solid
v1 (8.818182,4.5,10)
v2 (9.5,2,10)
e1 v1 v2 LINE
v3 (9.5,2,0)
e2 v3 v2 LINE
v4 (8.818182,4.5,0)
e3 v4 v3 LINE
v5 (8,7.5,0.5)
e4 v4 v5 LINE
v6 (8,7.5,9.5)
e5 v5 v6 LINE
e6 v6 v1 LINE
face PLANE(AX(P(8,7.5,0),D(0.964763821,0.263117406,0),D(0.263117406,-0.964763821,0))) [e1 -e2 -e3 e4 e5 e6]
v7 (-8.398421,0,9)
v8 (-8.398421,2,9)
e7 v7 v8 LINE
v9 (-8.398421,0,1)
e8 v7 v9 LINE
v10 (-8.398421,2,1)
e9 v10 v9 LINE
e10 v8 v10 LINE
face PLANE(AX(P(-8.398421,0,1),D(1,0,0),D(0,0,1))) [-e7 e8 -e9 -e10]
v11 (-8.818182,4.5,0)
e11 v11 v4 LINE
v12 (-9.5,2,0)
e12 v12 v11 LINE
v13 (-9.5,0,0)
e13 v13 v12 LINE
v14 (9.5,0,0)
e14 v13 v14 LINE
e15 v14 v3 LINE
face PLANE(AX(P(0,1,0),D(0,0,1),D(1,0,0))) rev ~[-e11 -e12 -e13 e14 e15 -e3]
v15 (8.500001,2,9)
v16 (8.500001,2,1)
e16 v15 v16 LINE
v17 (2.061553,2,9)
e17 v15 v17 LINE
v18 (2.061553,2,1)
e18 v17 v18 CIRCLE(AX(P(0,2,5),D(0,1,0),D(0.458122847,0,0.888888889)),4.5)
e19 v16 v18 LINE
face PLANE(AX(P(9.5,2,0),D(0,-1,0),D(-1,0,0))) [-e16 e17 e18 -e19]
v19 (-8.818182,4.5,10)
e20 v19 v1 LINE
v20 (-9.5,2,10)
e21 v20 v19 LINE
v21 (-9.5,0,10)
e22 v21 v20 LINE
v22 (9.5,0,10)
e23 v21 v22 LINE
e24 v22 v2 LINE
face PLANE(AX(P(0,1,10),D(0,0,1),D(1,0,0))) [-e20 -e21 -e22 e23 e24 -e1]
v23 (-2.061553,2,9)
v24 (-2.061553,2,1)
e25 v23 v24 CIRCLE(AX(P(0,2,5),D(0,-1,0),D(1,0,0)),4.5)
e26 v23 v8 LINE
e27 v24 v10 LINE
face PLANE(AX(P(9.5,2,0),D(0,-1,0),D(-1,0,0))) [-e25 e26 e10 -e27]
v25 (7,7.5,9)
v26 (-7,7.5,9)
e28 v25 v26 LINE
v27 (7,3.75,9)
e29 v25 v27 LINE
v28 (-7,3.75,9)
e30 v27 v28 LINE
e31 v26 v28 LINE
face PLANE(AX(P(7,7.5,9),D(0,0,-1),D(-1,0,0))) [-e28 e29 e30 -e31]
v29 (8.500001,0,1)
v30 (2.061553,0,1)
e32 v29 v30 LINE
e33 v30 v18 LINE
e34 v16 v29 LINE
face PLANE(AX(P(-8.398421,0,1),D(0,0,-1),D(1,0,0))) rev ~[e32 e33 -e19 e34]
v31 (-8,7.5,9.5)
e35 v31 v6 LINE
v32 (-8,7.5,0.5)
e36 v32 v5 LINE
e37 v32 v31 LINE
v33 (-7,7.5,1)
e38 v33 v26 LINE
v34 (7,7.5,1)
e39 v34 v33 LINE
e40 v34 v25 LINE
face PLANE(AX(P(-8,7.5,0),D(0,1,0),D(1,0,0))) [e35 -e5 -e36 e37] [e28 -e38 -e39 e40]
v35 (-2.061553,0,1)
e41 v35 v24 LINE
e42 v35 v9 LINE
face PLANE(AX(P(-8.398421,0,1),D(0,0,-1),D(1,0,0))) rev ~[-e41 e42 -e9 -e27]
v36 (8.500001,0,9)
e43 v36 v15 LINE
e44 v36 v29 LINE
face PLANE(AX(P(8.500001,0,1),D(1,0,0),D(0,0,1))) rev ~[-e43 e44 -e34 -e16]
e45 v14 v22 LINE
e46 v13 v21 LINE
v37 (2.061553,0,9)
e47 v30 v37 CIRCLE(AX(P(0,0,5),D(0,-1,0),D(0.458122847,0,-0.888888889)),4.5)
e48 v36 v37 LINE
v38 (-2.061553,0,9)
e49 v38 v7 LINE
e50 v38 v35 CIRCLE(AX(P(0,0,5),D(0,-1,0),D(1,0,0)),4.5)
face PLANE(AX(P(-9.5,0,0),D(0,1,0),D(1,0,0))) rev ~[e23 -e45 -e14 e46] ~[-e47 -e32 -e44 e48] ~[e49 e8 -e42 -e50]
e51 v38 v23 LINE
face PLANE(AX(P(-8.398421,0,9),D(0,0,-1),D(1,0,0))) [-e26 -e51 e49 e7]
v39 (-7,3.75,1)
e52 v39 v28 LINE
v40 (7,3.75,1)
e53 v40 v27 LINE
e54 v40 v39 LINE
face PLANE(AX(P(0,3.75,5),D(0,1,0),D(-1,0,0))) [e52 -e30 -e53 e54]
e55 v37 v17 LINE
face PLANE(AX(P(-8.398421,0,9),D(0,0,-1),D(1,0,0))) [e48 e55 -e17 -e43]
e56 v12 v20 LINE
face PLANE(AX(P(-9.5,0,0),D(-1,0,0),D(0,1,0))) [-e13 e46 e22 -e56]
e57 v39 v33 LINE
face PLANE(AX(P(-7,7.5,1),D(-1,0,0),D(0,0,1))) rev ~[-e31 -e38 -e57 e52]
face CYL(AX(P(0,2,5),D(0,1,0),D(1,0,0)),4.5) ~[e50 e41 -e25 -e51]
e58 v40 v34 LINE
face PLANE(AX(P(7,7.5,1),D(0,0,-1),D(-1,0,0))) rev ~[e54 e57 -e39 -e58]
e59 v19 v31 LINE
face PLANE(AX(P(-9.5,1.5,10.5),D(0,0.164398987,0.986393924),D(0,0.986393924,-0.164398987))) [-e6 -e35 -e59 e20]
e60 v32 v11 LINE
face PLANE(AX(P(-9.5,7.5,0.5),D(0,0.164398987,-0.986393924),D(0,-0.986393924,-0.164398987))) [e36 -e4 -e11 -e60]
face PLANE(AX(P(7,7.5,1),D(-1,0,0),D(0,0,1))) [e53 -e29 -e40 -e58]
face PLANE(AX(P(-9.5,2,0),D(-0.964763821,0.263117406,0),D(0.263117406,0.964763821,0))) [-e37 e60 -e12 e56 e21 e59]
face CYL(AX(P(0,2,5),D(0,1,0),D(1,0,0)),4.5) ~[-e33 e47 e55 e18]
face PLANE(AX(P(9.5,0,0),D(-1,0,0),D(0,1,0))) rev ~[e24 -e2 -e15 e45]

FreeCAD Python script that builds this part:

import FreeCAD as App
import Part
import Sketcher


def add_polygon(sketch, points):
    """Adds a closed chain of lines whose ends are joined by coincident constraints."""
    first, n = sketch.GeometryCount, len(points)
    for a, b in zip(points, points[1:] + points[:1]):
        sketch.addGeometry(Part.LineSegment(App.Vector(*a, 0), App.Vector(*b, 0)), False)
    for i in range(n):
        sketch.addConstraint(Sketcher.Constraint("Coincident", first + i, 2, first + (i + 1) % n, 1))

doc = App.newDocument("Part")
body = doc.addObject("PartDesign::Body", "Body")

sketch1 = body.newObject("Sketcher::SketchObject", "Sketch")
sketch1.AttachmentSupport = (doc.getObject("XZ_Plane"), [""])
sketch1.MapMode = "FlatFace"
add_polygon(sketch1, [(-8.398421, 9), (-8.398421, 1), (8.500001, 1), (8.500001, 9)])
sketch1.addConstraint([
    Sketcher.Constraint("Vertical", 0),
    Sketcher.Constraint("Horizontal", 1),
    Sketcher.Constraint("Vertical", 2),
    Sketcher.Constraint("Horizontal", 3),
    Sketcher.Constraint("DistanceY", 0, 2, 0, 1, 8.0),
    Sketcher.Constraint("DistanceY", -1, 1, 0, 2, 1.0),
    Sketcher.Constraint("DistanceX", -1, 1, 1, 2, 8.500001),
    Sketcher.Constraint("DistanceX", 1, 1, 1, 2, 16.898421),
])
pad1 = body.newObject("PartDesign::Pad", "Pad")
pad1.Profile = sketch1
pad1.Length = 5
pad1.Midplane = True
body2 = doc.addObject("PartDesign::Body", "Body001")

sketch2 = body2.newObject("Sketcher::SketchObject", "Sketch001")
sketch2.AttachmentSupport = (doc.getObject("XY_Plane001"), [""])
sketch2.MapMode = "FlatFace"
add_polygon(sketch2, [(-9.5, 2), (-9.5, 0), (9.5, 0), (9.5, 2)])
sketch2.addConstraint([
    Sketcher.Constraint("Vertical", 0),
    Sketcher.Constraint("Horizontal", 1),
    Sketcher.Constraint("Vertical", 2),
    Sketcher.Constraint("Horizontal", 3),
    Sketcher.Constraint("Symmetric", 0, 2, 1, 2, -1, 1),
    Sketcher.Constraint("DistanceX", 1, 1, 1, 2, 19.0),
    Sketcher.Constraint("DistanceY", 0, 2, 0, 1, 2.0),
])
pad2 = body2.newObject("PartDesign::Pad", "Pad001")
pad2.Profile = sketch2
pad2.Length = 10
doc.recompute()

boolean = body2.newObject("PartDesign::Boolean", "Boolean")
boolean.Type = "Cut"
boolean.addObjects([body])
body3 = doc.addObject("PartDesign::Body", "Body002")

sketch3 = body3.newObject("Sketcher::SketchObject", "Sketch002")
sketch3.AttachmentSupport = (doc.getObject("XZ_Plane002"), [""])
sketch3.MapMode = "FlatFace"
sketch3.AttachmentOffset = App.Placement(App.Vector(0, 0, -2), App.Rotation())
sketch3.addGeometry(Part.Circle(App.Vector(0, 5, 0), App.Vector(0, 0, 1), 4.5), False)
sketch3.addConstraint([
    Sketcher.Constraint("PointOnObject", 0, 3, -2),
    Sketcher.Constraint("Diameter", 0, 9.0),
    Sketcher.Constraint("DistanceY", -1, 1, 0, 3, 5.0),
])
pad3 = body3.newObject("PartDesign::Pad", "Pad002")
pad3.Profile = sketch3
pad3.Length = 2
body4 = doc.addObject("PartDesign::Body", "Body003")

sketch4 = body4.newObject("Sketcher::SketchObject", "Sketch003")
sketch4.AttachmentSupport = (doc.getObject("YZ_Plane003"), [""])
sketch4.MapMode = "FlatFace"
sketch4.AttachmentOffset = App.Placement(App.Vector(0, 0, -9.5), App.Rotation())
add_polygon(sketch4, [(1.5, 10.5), (7.5, 9.5), (7.5, 0.5), (1.5, -0.5)])
sketch4.addConstraint([
    Sketcher.Constraint("Vertical", 1),
    Sketcher.Constraint("Vertical", 3),
    Sketcher.Constraint("Equal", 0, 2),
    Sketcher.Constraint("DistanceY", 1, 2, 1, 1, 9.0),
    Sketcher.Constraint("DistanceY", 3, 1, 3, 2, 11.0),
    Sketcher.Constraint("DistanceX", 2, 2, 1, 2, 6.0),
    Sketcher.Constraint("DistanceX", -1, 1, 0, 2, 7.5),
    Sketcher.Constraint("DistanceY", -1, 1, 0, 2, 9.5),
])
pad4 = body4.newObject("PartDesign::Pad", "Pad003")
pad4.Profile = sketch4
pad4.Length = 19
body5 = doc.addObject("PartDesign::Body", "Body004")

sketch5 = body5.newObject("Sketcher::SketchObject", "Sketch004")
sketch5.AttachmentSupport = (doc.getObject("XZ_Plane004"), [""])
sketch5.MapMode = "FlatFace"
sketch5.AttachmentOffset = App.Placement(App.Vector(0, 0, -7.5), App.Rotation())
add_polygon(sketch5, [(7, 9), (7, 1), (-7, 1), (-7, 9)])
sketch5.addConstraint([
    Sketcher.Constraint("Vertical", 0),
    Sketcher.Constraint("Horizontal", 1),
    Sketcher.Constraint("Vertical", 2),
    Sketcher.Constraint("Horizontal", 3),
    Sketcher.Constraint("DistanceX", 1, 2, 1, 1, 14.0),
    Sketcher.Constraint("DistanceY", 0, 2, 0, 1, 8.0),
    Sketcher.Constraint("DistanceX", -1, 1, 0, 2, 7.0),
    Sketcher.Constraint("DistanceY", -1, 1, 0, 2, 1.0),
])
pad5 = body5.newObject("PartDesign::Pad", "Pad004")
pad5.Profile = sketch5
pad5.Length = 7.5
pad5.Midplane = True
body6 = doc.addObject("PartDesign::Body", "Body005")

sketch6 = body6.newObject("Sketcher::SketchObject", "Sketch005")
sketch6.AttachmentSupport = (doc.getObject("XY_Plane005"), [""])
sketch6.MapMode = "FlatFace"
add_polygon(sketch6, [(-8, 7.5), (-9.5, 2), (9.5, 2), (8, 7.5)])
sketch6.addConstraint([
    Sketcher.Constraint("Horizontal", 1),
    Sketcher.Constraint("Horizontal", 3),
    Sketcher.Constraint("Equal", 0, 2),
    Sketcher.Constraint("DistanceX", 1, 1, 1, 2, 19.0),
    Sketcher.Constraint("DistanceX", 3, 2, 3, 1, 16.0),
    Sketcher.Constraint("DistanceY", -1, 1, 0, 2, 2.0),
    Sketcher.Constraint("DistanceX", -1, 1, 2, 2, 8.0),
    Sketcher.Constraint("DistanceY", -1, 1, 2, 2, 7.5),
])
pad6 = body6.newObject("PartDesign::Pad", "Pad005")
pad6.Profile = sketch6
pad6.Length = 10
doc.recompute()

boolean2 = body6.newObject("PartDesign::Boolean", "Boolean001")
boolean2.Type = "Cut"
boolean2.addObjects([body5])
doc.recompute()

boolean3 = body6.newObject("PartDesign::Boolean", "Boolean002")
boolean3.Type = "Common"
boolean3.addObjects([body4])
doc.recompute()

boolean4 = body6.newObject("PartDesign::Boolean", "Boolean003")
boolean4.Type = "Fuse"
boolean4.addObjects([body3])
doc.recompute()

boolean5 = body6.newObject("PartDesign::Boolean", "Boolean004")
boolean5.Type = "Fuse"
boolean5.addObjects([body2])

doc.recompute()
